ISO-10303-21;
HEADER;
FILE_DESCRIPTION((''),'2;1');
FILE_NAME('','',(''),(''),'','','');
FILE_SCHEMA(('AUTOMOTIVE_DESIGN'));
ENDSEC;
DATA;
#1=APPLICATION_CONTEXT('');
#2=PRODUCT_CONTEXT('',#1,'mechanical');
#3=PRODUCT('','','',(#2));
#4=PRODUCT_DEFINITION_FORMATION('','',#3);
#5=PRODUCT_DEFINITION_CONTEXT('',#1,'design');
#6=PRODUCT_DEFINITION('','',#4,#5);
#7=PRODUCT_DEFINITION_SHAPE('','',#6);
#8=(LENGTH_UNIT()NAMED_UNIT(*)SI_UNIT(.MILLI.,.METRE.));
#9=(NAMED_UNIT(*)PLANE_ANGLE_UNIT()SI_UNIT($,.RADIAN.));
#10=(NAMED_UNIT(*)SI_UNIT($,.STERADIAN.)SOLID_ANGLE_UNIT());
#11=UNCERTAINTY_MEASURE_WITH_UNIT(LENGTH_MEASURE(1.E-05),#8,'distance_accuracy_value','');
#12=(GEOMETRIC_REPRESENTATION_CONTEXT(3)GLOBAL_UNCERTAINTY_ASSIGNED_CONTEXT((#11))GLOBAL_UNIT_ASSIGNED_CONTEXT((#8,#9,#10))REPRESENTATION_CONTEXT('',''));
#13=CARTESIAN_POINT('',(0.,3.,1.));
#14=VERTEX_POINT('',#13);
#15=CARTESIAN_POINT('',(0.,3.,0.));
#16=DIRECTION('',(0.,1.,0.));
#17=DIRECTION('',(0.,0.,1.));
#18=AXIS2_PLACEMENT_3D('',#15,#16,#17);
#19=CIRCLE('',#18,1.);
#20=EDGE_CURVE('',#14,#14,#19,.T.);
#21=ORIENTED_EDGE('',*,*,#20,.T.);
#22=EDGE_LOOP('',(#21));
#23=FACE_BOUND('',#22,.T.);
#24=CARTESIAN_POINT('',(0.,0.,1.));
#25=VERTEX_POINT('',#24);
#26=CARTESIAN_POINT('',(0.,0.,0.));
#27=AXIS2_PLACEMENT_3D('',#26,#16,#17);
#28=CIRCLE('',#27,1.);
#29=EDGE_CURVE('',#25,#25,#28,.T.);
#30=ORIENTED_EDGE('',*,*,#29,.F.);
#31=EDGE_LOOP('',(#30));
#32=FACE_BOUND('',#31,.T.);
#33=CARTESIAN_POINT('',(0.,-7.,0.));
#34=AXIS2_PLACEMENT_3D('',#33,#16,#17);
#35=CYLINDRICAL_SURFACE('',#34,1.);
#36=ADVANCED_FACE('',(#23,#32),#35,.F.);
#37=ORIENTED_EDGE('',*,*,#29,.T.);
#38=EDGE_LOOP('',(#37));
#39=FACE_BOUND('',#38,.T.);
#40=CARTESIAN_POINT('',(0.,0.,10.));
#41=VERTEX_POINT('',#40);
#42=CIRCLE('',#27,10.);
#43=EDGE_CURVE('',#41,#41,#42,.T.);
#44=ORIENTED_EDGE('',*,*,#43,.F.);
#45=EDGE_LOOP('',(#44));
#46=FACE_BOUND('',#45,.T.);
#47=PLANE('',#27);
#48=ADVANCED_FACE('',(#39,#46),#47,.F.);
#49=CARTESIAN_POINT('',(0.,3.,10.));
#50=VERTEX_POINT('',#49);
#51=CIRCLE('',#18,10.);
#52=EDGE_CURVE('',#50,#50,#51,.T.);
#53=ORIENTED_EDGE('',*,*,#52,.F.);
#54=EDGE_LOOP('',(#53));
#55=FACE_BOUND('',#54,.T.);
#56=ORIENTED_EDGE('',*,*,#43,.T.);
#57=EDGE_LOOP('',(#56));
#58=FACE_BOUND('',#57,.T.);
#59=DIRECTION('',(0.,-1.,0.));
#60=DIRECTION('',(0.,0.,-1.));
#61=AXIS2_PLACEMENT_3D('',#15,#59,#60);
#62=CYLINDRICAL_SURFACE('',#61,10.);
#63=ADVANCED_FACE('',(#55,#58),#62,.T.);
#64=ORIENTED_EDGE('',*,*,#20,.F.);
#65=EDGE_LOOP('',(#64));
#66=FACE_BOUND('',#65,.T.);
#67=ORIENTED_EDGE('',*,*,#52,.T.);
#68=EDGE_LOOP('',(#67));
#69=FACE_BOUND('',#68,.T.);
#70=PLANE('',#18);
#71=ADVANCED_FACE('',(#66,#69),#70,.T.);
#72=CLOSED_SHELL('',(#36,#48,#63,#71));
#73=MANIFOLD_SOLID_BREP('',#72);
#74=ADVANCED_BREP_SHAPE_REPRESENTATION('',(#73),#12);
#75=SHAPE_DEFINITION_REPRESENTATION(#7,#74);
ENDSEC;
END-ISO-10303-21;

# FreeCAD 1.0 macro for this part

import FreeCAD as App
import Part
import Sketcher
Q = App.Units.Quantity

doc = App.newDocument("Part")
body = doc.addObject("PartDesign::Body", "Body")

# Sketch on XZ plane
sketch1 = body.newObject("Sketcher::SketchObject", "Sketch")
sketch1.AttachmentSupport = (doc.getObject("XZ_Plane"), [""])
sketch1.MapMode = "FlatFace"
sketch1.addGeometry(Part.Circle(App.Vector(0, 0, 0), App.Vector(0, 0, 1), 10), False)
sketch1.addConstraint([
    Sketcher.Constraint("Coincident", 0, 3, -1, 1),
    Sketcher.Constraint("Diameter", 0, Q("20 mm")),
])
pad1 = body.newObject("PartDesign::Pad", "Pad")
pad1.Profile = sketch1
pad1.Length = 3
pad1.Reversed = True

# Sketch on XZ plane
sketch2 = body.newObject("Sketcher::SketchObject", "Sketch001")
sketch2.AttachmentSupport = (doc.getObject("XZ_Plane"), [""])
sketch2.MapMode = "FlatFace"
sketch2.AttachmentOffset = App.Placement(App.Vector(0, 0, -3), App.Rotation())
sketch2.addGeometry(Part.Circle(App.Vector(0, 0, 0), App.Vector(0, 0, 1), 1), False)
sketch2.addConstraint([
    Sketcher.Constraint("Coincident", 0, 3, -1, 1),
    Sketcher.Constraint("Diameter", 0, Q("2 mm")),
])
pocket1 = body.newObject("PartDesign::Pocket", "Pocket")
pocket1.Profile = sketch2
pocket1.Length = 10
pocket1.Reversed = True

doc.recompute()
